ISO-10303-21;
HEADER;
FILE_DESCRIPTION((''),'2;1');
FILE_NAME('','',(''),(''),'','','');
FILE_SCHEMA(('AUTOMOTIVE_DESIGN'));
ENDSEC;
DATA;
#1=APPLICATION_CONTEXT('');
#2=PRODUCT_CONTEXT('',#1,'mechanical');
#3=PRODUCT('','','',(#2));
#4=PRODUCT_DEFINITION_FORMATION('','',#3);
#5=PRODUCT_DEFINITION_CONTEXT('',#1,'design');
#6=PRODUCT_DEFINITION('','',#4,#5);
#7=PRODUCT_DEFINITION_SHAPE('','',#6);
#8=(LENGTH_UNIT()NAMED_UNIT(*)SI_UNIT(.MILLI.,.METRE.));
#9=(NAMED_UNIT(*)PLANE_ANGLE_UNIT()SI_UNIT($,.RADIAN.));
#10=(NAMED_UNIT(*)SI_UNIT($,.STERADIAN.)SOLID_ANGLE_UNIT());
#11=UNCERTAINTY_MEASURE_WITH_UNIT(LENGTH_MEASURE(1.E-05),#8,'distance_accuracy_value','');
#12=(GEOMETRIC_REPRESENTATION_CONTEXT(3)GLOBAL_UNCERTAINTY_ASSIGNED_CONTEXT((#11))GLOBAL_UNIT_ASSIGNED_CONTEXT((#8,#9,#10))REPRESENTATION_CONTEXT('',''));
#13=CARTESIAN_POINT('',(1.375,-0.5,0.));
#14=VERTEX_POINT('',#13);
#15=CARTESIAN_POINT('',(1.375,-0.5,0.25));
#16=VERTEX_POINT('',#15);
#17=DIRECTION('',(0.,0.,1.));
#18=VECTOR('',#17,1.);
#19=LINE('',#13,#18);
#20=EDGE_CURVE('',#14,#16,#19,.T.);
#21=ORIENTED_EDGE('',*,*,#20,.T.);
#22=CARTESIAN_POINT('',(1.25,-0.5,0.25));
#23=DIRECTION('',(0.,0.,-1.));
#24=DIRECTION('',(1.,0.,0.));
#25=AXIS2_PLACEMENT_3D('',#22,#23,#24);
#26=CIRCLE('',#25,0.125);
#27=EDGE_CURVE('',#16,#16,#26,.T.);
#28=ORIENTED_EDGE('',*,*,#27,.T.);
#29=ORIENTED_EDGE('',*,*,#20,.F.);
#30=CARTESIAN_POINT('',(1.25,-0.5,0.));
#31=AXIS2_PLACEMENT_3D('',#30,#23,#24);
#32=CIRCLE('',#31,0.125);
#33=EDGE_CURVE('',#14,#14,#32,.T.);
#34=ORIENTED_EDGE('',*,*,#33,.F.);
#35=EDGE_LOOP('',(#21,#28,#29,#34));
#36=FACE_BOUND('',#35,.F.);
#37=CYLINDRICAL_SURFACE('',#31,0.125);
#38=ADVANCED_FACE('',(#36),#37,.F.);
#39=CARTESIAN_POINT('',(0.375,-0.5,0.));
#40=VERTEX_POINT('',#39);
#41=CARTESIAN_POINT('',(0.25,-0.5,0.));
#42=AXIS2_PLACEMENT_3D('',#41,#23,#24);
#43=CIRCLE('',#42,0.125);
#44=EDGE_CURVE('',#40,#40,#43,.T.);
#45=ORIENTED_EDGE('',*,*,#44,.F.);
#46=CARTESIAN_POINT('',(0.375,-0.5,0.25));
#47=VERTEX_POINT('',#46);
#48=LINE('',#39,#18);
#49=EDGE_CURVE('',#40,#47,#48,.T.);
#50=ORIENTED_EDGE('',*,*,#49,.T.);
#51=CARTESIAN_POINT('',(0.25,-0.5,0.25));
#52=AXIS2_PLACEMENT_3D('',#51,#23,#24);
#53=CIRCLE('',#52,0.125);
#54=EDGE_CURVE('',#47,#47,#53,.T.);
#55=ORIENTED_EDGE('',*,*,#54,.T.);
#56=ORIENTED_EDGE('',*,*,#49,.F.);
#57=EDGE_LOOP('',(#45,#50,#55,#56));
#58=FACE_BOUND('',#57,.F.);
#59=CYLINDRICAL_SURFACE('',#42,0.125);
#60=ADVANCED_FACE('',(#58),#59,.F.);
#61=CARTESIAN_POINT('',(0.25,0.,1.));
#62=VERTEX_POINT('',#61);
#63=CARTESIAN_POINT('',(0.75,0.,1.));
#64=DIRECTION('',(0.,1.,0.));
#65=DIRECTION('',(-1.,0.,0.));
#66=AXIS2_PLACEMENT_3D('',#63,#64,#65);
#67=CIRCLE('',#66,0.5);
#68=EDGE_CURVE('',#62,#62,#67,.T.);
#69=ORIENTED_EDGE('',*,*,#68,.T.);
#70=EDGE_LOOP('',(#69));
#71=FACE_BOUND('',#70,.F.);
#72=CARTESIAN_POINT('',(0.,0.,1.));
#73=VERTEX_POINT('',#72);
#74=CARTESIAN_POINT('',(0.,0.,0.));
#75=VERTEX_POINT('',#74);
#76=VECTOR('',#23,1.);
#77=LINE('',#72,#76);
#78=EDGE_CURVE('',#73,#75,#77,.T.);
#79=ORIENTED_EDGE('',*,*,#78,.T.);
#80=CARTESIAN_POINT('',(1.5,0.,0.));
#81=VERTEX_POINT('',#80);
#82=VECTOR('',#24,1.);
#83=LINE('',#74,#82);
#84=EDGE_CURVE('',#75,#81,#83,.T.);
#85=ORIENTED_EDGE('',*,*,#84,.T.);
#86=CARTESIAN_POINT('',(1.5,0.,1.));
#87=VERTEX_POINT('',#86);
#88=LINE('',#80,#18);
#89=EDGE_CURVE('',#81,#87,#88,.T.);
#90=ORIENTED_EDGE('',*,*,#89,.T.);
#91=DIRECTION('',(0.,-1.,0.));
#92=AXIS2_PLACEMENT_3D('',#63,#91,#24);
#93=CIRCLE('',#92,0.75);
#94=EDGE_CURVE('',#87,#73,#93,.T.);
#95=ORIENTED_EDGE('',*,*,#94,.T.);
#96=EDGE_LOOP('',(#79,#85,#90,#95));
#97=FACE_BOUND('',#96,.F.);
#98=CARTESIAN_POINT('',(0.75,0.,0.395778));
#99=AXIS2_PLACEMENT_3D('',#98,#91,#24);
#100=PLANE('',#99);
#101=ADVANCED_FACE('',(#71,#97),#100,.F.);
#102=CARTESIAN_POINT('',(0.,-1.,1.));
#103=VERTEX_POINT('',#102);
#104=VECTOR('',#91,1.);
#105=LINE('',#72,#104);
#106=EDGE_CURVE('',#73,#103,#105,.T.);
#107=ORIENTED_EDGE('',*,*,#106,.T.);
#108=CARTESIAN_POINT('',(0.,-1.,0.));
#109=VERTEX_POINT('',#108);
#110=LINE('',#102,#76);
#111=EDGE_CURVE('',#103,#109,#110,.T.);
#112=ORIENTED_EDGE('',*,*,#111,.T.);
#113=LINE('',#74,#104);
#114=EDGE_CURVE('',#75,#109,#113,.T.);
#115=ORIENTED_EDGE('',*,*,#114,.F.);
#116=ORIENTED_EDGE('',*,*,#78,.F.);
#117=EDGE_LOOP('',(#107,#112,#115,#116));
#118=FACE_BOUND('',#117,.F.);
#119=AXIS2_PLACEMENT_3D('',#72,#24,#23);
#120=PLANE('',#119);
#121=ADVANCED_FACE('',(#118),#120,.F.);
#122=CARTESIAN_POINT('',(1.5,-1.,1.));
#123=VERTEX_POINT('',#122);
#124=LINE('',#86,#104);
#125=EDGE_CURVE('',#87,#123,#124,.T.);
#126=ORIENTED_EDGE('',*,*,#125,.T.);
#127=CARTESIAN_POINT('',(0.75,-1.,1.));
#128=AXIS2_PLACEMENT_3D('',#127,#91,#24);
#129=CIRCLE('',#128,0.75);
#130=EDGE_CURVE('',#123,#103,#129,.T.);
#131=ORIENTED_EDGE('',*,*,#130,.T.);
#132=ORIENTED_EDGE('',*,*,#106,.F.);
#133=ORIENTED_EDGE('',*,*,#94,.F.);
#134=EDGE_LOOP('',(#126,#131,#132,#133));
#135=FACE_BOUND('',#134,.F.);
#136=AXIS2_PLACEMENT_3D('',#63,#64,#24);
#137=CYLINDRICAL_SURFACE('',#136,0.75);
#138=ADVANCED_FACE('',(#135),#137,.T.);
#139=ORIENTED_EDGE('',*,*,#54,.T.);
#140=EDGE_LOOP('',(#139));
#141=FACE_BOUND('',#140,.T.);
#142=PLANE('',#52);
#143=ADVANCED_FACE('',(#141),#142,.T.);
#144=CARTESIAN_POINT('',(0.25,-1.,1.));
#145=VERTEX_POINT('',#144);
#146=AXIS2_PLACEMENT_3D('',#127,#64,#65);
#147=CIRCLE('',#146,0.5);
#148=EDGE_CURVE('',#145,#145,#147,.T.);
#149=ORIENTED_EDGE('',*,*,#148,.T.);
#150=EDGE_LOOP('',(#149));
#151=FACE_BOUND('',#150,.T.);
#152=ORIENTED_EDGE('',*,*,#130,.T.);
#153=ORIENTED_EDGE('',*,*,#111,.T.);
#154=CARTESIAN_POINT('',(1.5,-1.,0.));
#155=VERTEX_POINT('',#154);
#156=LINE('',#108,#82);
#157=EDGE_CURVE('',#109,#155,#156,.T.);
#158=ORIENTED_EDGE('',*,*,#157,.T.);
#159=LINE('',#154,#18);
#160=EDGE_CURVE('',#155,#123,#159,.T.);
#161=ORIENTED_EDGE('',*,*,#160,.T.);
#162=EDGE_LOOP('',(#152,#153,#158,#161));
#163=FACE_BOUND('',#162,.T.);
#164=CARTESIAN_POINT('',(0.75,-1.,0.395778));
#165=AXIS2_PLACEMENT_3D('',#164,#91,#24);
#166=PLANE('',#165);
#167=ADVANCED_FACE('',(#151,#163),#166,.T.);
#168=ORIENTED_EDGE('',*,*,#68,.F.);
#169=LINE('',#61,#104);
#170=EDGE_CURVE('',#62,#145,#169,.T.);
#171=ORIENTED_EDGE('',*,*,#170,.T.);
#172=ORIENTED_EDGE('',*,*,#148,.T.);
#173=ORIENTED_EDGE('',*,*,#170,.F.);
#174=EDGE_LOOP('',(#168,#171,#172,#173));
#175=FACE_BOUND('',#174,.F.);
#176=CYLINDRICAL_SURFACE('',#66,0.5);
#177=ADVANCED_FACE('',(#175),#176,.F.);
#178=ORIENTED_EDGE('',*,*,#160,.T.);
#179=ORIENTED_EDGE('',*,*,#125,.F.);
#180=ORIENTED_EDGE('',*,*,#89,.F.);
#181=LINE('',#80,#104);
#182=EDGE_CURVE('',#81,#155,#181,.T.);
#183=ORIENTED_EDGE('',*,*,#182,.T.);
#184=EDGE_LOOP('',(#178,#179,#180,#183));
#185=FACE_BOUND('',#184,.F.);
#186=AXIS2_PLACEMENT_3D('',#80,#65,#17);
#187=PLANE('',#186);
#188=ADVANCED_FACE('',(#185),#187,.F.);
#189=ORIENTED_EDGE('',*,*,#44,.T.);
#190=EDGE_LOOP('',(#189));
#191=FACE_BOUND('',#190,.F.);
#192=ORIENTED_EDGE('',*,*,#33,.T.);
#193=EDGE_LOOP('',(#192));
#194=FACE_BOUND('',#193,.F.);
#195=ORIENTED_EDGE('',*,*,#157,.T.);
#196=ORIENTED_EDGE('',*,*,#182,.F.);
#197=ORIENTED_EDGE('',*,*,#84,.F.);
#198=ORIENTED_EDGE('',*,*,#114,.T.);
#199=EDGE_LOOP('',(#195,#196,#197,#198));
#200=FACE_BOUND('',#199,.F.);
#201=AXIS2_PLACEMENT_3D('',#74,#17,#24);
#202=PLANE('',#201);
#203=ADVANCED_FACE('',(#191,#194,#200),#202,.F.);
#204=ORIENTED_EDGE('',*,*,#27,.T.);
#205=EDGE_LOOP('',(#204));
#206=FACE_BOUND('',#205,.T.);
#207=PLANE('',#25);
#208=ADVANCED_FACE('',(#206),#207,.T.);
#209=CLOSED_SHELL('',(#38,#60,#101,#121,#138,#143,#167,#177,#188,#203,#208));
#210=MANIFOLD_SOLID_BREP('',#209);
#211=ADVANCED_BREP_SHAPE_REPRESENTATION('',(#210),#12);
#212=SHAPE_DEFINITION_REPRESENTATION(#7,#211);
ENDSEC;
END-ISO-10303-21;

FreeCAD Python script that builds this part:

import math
import FreeCAD as App
import Part
import Sketcher

doc = App.newDocument("Part")
body = doc.addObject("PartDesign::Body", "Body")

sketch1 = body.newObject("Sketcher::SketchObject", "Sketch")
sketch1.AttachmentSupport = (doc.getObject("XZ_Plane"), [""])
sketch1.MapMode = "FlatFace"
sketch1.addGeometry([
    Part.LineSegment(App.Vector(0, 1, 0), App.Vector(0, 0, 0)),
    Part.LineSegment(App.Vector(0, 0, 0), App.Vector(1.5, 0, 0)),
    Part.LineSegment(App.Vector(1.5, 0, 0), App.Vector(1.5, 1, 0)),
    Part.ArcOfCircle(Part.Circle(App.Vector(0.75, 1, 0), App.Vector(0, 0, 1), 0.75), math.radians(0), math.radians(180)),
    Part.Circle(App.Vector(0.75, 1, 0), App.Vector(0, 0, 1), 0.5),
], False)
sketch1.addConstraint([
    Sketcher.Constraint("Coincident", 0, 2, 1, 1),
    Sketcher.Constraint("Coincident", 1, 2, 2, 1),
    Sketcher.Constraint("Tangent", 2, 2, 3, 1),
    Sketcher.Constraint("Tangent", 3, 2, 0, 1),
    Sketcher.Constraint("Vertical", 0),
    Sketcher.Constraint("Horizontal", 1),
    Sketcher.Constraint("Vertical", 2),
    Sketcher.Constraint("Coincident", 0, 2, -1, 1),
    Sketcher.Constraint("Coincident", 4, 3, 3, 3),
    Sketcher.Constraint("Diameter", 4, 1.0),
    Sketcher.Constraint("DistanceY", 0, 2, 0, 1, 1.0),
    Sketcher.Constraint("Radius", 3, 0.75),
])
pad1 = body.newObject("PartDesign::Pad", "Pad")
pad1.Profile = sketch1
pad1.Length = 1

sketch2 = body.newObject("Sketcher::SketchObject", "Sketch001")
sketch2.AttachmentSupport = (doc.getObject("XY_Plane"), [""])
sketch2.MapMode = "FlatFace"
sketch2.addGeometry([
    Part.Circle(App.Vector(1.25, -0.5, 0), App.Vector(0, 0, 1), 0.125),
    Part.Circle(App.Vector(0.25, -0.5, 0), App.Vector(0, 0, 1), 0.125),
], False)
sketch2.addConstraint([
    Sketcher.Constraint("Equal", 0, 1),
    Sketcher.Constraint("Horizontal", 0, 3, 1, 3),
    Sketcher.Constraint("Diameter", 0, 0.25),
    Sketcher.Constraint("DistanceX", 1, 3, 0, 3, 1.0),
    Sketcher.Constraint("DistanceY", 0, 3, -1, 1, 0.5),
    Sketcher.Constraint("DistanceX", -1, 1, 0, 3, 1.25),
])
pocket1 = body.newObject("PartDesign::Pocket", "Pocket")
pocket1.Profile = sketch2
pocket1.Length = 0.25
pocket1.Reversed = True

doc.recompute()
